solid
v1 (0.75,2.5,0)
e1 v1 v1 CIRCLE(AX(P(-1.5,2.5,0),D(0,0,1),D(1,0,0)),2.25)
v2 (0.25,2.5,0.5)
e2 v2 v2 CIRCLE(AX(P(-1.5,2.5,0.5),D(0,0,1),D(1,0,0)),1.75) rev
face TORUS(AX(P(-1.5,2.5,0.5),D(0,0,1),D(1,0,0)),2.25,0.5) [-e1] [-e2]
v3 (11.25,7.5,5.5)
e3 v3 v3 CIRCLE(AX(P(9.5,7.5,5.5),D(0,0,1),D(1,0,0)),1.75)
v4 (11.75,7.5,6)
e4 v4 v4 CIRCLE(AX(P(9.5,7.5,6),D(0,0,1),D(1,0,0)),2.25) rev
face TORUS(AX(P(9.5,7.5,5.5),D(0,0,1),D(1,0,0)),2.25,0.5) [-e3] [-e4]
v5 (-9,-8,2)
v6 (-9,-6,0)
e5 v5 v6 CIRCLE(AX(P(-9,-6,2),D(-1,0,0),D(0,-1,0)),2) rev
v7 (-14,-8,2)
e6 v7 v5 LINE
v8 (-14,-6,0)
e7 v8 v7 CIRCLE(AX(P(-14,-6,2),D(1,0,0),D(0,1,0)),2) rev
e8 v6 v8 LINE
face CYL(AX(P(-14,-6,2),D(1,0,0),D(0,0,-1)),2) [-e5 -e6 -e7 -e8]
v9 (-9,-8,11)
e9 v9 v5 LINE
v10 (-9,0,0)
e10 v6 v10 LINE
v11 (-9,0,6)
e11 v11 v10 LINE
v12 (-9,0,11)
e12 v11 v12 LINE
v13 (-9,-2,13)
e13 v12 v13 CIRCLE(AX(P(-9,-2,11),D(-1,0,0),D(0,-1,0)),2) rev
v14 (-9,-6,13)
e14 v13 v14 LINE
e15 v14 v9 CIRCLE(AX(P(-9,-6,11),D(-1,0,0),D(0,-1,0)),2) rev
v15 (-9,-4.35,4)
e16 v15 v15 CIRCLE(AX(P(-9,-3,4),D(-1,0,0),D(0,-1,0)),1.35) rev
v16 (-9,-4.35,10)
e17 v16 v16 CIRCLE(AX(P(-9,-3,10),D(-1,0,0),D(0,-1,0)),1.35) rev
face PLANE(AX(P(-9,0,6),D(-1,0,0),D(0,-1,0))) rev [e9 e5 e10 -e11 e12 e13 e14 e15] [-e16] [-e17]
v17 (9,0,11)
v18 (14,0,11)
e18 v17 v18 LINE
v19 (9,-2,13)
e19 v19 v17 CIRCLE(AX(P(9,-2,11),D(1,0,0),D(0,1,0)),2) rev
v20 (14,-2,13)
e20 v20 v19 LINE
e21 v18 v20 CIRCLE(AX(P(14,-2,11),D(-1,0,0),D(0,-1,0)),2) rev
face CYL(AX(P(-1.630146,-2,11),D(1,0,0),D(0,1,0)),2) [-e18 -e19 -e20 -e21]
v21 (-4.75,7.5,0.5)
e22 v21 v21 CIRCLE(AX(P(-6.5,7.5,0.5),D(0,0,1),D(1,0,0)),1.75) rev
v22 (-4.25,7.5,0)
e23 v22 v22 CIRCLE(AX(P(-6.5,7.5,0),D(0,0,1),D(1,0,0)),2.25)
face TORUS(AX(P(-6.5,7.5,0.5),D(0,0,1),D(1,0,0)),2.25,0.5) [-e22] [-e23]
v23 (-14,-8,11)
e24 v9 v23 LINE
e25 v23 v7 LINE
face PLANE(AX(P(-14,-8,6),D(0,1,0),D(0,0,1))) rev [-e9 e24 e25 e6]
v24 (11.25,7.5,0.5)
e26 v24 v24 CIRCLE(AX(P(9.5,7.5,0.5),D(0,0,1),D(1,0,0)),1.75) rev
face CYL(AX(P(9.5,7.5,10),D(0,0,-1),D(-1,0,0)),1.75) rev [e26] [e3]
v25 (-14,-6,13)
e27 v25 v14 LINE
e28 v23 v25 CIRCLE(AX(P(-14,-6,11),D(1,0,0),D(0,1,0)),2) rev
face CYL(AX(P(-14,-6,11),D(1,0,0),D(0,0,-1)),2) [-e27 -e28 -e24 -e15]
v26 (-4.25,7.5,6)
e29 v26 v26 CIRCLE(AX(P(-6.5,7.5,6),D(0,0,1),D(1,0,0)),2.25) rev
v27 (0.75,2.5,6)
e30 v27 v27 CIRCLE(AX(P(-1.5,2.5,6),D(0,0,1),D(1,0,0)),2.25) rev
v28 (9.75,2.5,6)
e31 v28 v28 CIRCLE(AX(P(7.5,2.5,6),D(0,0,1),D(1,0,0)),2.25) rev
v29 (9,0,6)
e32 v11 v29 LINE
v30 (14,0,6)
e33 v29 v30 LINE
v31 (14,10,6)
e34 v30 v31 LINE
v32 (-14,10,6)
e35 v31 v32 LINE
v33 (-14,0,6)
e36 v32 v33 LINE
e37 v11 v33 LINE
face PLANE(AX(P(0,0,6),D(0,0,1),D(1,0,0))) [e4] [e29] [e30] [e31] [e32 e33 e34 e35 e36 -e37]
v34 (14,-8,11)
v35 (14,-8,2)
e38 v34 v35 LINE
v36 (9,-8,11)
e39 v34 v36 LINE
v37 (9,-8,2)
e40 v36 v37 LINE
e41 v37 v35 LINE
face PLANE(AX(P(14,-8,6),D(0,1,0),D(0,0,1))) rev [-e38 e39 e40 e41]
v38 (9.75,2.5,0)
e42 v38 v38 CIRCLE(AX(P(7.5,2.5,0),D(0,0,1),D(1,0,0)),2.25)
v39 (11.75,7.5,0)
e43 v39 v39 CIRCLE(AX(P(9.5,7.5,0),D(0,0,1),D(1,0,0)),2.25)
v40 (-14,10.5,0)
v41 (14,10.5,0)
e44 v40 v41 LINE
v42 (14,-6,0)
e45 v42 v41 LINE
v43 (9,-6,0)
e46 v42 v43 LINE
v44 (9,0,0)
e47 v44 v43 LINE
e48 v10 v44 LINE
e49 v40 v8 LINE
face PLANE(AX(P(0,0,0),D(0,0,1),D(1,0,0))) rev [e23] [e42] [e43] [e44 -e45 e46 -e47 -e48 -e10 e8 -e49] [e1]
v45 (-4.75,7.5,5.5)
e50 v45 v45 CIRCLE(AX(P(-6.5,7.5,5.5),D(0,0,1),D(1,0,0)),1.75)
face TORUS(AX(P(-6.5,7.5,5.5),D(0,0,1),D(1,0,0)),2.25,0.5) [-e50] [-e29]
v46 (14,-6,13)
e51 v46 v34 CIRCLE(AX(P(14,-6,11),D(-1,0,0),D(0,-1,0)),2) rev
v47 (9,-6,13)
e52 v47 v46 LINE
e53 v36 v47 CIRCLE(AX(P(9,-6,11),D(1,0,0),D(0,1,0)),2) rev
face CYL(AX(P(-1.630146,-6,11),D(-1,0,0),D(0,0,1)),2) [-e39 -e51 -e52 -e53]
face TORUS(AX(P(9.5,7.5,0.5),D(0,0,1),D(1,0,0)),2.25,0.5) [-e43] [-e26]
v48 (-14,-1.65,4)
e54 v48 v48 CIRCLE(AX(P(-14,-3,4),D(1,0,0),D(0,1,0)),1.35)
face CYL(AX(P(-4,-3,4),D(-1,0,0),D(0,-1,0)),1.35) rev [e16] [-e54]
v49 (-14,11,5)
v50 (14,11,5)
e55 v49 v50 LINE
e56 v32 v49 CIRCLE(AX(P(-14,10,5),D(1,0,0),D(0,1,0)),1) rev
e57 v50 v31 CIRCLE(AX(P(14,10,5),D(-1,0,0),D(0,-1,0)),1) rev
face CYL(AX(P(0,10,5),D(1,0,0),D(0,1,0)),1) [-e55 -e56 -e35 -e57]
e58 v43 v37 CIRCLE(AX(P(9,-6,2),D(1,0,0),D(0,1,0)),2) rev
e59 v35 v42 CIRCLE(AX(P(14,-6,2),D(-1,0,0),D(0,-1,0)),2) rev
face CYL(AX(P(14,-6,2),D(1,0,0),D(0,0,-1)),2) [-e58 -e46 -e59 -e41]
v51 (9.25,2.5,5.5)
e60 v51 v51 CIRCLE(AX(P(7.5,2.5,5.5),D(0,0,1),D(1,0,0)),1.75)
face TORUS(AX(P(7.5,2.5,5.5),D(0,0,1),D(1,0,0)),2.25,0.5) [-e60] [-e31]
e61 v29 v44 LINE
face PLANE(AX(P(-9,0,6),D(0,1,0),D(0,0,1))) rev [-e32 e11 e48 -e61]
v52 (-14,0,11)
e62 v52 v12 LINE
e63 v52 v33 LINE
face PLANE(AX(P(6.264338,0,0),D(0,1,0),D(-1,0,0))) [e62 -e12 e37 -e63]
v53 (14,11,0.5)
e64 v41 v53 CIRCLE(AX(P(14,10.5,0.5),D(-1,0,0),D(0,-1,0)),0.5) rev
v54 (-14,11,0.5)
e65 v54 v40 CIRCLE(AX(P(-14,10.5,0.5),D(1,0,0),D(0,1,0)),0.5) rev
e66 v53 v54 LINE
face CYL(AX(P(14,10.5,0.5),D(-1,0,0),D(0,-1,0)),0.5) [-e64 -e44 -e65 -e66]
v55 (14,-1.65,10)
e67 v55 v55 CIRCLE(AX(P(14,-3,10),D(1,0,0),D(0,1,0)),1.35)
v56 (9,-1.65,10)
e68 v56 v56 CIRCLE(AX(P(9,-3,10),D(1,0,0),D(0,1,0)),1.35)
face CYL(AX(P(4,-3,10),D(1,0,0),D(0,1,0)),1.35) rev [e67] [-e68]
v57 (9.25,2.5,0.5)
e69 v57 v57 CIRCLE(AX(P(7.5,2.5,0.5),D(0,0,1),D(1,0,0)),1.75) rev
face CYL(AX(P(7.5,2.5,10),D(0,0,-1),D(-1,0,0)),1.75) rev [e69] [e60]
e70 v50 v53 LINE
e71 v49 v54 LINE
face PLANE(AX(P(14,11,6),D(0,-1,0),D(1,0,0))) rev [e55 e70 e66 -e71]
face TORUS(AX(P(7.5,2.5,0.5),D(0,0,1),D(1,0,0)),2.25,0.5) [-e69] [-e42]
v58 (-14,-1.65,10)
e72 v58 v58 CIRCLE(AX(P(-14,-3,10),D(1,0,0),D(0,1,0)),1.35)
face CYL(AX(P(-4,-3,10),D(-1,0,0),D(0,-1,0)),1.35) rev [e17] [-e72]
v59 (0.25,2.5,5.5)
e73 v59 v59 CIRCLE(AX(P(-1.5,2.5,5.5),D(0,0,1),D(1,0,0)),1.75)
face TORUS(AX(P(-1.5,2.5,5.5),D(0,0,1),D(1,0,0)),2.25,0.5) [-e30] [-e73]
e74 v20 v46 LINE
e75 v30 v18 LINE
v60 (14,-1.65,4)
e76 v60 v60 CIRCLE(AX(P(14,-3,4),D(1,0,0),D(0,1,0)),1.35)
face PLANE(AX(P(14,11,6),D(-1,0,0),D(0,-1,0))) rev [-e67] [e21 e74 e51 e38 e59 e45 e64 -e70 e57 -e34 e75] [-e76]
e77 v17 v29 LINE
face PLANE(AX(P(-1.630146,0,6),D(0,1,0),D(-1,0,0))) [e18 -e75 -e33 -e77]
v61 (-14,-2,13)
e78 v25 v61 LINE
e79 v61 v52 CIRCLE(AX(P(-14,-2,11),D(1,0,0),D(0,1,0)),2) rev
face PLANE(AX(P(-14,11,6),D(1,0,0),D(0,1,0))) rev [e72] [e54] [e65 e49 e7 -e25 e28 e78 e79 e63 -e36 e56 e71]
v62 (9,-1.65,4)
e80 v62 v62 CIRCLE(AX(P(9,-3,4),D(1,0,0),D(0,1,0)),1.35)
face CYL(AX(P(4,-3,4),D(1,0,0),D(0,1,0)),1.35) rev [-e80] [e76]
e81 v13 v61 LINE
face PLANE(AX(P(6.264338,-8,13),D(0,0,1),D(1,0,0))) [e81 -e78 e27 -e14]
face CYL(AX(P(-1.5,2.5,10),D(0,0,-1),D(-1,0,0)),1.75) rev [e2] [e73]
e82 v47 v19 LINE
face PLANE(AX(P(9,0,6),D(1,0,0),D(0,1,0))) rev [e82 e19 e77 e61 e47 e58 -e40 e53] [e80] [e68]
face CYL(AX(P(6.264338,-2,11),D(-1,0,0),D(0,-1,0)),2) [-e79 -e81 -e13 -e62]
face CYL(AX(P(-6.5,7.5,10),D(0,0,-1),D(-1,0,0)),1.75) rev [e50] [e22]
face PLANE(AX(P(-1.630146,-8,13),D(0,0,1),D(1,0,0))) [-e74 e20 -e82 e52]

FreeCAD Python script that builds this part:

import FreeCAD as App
import Part
import Sketcher

V = App.Vector
Q = App.Units.Quantity


def edges_at(feature, points):
    """Names of the edges that pass closest to the given points."""
    edges = feature.Shape.Edges
    near = lambda p: min(range(len(edges)), key=lambda i: edges[i].distToShape(Part.Vertex(*p))[0])
    return sorted({f"Edge{near(p) + 1}" for p in points})

doc = App.newDocument("Part")
params = doc.addObject("Spreadsheet::Sheet", "Params")
for row, (alias, value) in enumerate([
    ("sketch1_width", "28 mm"),
    ("sketch1_width2", "5 mm"),
    ("sketch1_height", "19 mm"),
    ("sketch1_height2", "8 mm"),
    ("pad1_length", "6 mm"),
    ("sketch2_width", "8 mm"),
    ("sketch2_height", "7 mm"),
    ("pad2_length", "5 mm"),
    ("sketch3_diameter", "2.7 mm"),
    ("pocket1_length", "10 mm"),
    ("sketch4_width", "8 mm"),
    ("sketch4_height", "13 mm"),
    ("pad3_length", "5 mm"),
    ("sketch5_diameter", "3.5 mm"),
    ("pocket2_length", "10 mm"),
    ("fillet_radius", "1 mm"),
    ("fillet2_radius", "0.5 mm"),
    ("fillet3_radius", "2 mm"),
], start=1):
    params.set(f"A{row}", alias)
    params.set(f"B{row}", "=" + value)
    params.setAlias(f"B{row}", alias)

body = doc.addObject("PartDesign::Body", "Body")

# Sketch on XY plane
sketch1 = body.newObject("Sketcher::SketchObject", "Sketch")
sketch1.AttachmentSupport = (doc.getObject("XY_Plane"), [""])
sketch1.MapMode = "FlatFace"
sketch1.addGeometry([
    Part.LineSegment(V(14, 11, 0), V(-14, 11, 0)),  # 0
    Part.LineSegment(V(-14, 11, 0), V(-14, -8, 0)),  # 1
    Part.LineSegment(V(-14, -8, 0), V(-9, -8, 0)),  # 2
    Part.LineSegment(V(-9, -8, 0), V(-9, 0, 0)),  # 3
    Part.LineSegment(V(-9, 0, 0), V(9, 0, 0)),  # 4
    Part.LineSegment(V(9, 0, 0), V(9, -8, 0)),  # 5
    Part.LineSegment(V(9, -8, 0), V(14, -8, 0)),  # 6
    Part.LineSegment(V(14, -8, 0), V(14, 11, 0)),  # 7
], False)
sketch1.addConstraint([
    Sketcher.Constraint("Coincident", 0, 2, 1, 1),
    Sketcher.Constraint("Coincident", 1, 2, 2, 1),
    Sketcher.Constraint("Coincident", 2, 2, 3, 1),
    Sketcher.Constraint("Coincident", 3, 2, 4, 1),
    Sketcher.Constraint("Coincident", 4, 2, 5, 1),
    Sketcher.Constraint("Coincident", 5, 2, 6, 1),
    Sketcher.Constraint("Coincident", 6, 2, 7, 1),
    Sketcher.Constraint("Coincident", 7, 2, 0, 1),
    Sketcher.Constraint("Horizontal", 0),
    Sketcher.Constraint("Vertical", 1),
    Sketcher.Constraint("Horizontal", 2),
    Sketcher.Constraint("Vertical", 3),
    Sketcher.Constraint("Horizontal", 4),
    Sketcher.Constraint("Vertical", 5),
    Sketcher.Constraint("Horizontal", 6),
    Sketcher.Constraint("Vertical", 7),
    Sketcher.Constraint("Symmetric", 3, 2, 4, 2, -1, 1),
    Sketcher.Constraint("Symmetric", 1, 2, 6, 2, -2),
    Sketcher.Constraint("DistanceX", 0, 2, 0, 1, Q("28 mm")),
    Sketcher.Constraint("DistanceX", 2, 1, 2, 2, Q("5 mm")),
    Sketcher.Constraint("DistanceY", 1, 2, 1, 1, Q("19 mm")),
    Sketcher.Constraint("DistanceY", 3, 1, 3, 2, Q("8 mm")),
])
sketch1.setExpression("Constraints[18]", "Params.sketch1_width")
sketch1.setExpression("Constraints[19]", "Params.sketch1_width2")
sketch1.setExpression("Constraints[20]", "Params.sketch1_height")
sketch1.setExpression("Constraints[21]", "Params.sketch1_height2")
pad1 = body.newObject("PartDesign::Pad", "Pad")
pad1.Profile = sketch1
pad1.setExpression("Length", "Params.pad1_length")

# Sketch on YZ plane
sketch2 = body.newObject("Sketcher::SketchObject", "Sketch001")
sketch2.AttachmentSupport = (doc.getObject("YZ_Plane"), [""])
sketch2.MapMode = "FlatFace"
sketch2.AttachmentOffset = App.Placement(V(0, 0, 14), App.Rotation())
sketch2.addGeometry([
    Part.LineSegment(V(0, 13, 0), V(-8, 13, 0)),
    Part.LineSegment(V(-8, 13, 0), V(-8, 6, 0)),
    Part.LineSegment(V(-8, 6, 0), V(0, 6, 0)),
    Part.LineSegment(V(0, 6, 0), V(0, 13, 0)),
], False)
sketch2.addConstraint([
    Sketcher.Constraint("Coincident", 0, 2, 1, 1),
    Sketcher.Constraint("Coincident", 1, 2, 2, 1),
    Sketcher.Constraint("Coincident", 2, 2, 3, 1),
    Sketcher.Constraint("Coincident", 3, 2, 0, 1),
    Sketcher.Constraint("Horizontal", 0),
    Sketcher.Constraint("Vertical", 1),
    Sketcher.Constraint("Horizontal", 2),
    Sketcher.Constraint("Vertical", 3),
    Sketcher.Constraint("PointOnObject", 2, 2, -2),
    Sketcher.Constraint("DistanceX", 0, 2, 0, 1, Q("8 mm")),
    Sketcher.Constraint("DistanceY", 1, 2, 1, 1, Q("7 mm")),
    Sketcher.Constraint("DistanceY", -1, 1, 0, 2, Q("13 mm")),
])
sketch2.setExpression("Constraints[9]", "Params.sketch2_width")
sketch2.setExpression("Constraints[10]", "Params.sketch2_height")
pad2 = body.newObject("PartDesign::Pad", "Pad001")
pad2.Profile = sketch2
pad2.setExpression("Length", "Params.pad2_length")
pad2.Reversed = True

# Sketch on YZ plane
sketch3 = body.newObject("Sketcher::SketchObject", "Sketch002")
sketch3.AttachmentSupport = (doc.getObject("YZ_Plane"), [""])
sketch3.MapMode = "FlatFace"
sketch3.AttachmentOffset = App.Placement(V(0, 0, 14), App.Rotation())
sketch3.addGeometry([
    Part.Circle(V(-3, 4, 0), V(0, 0, 1), 1.4),
    Part.Circle(V(-3, 10, 0), V(0, 0, 1), 1.4),
], False)
sketch3.addConstraint([
    Sketcher.Constraint("Equal", 0, 1),
    Sketcher.Constraint("Vertical", 0, 3, 1, 3),
    Sketcher.Constraint("Diameter", 0, Q("2.7 mm")),
    Sketcher.Constraint("DistanceX", 0, 3, -1, 1, Q("3 mm")),
    Sketcher.Constraint("DistanceY", -1, 1, 0, 3, Q("4 mm")),
    Sketcher.Constraint("DistanceY", -1, 1, 1, 3, Q("10 mm")),
])
sketch3.setExpression("Constraints[2]", "Params.sketch3_diameter")
pocket1 = body.newObject("PartDesign::Pocket", "Pocket")
pocket1.Profile = sketch3
pocket1.setExpression("Length", "Params.pocket1_length")

# Sketch on YZ plane
sketch4 = body.newObject("Sketcher::SketchObject", "Sketch003")
sketch4.AttachmentSupport = (doc.getObject("YZ_Plane"), [""])
sketch4.MapMode = "FlatFace"
sketch4.AttachmentOffset = App.Placement(V(0, 0, -14), App.Rotation())
sketch4.addGeometry([
    Part.LineSegment(V(0, 0, 0), V(-8, 0, 0)),
    Part.LineSegment(V(-8, 0, 0), V(-8, 13, 0)),
    Part.LineSegment(V(-8, 13, 0), V(0, 13, 0)),
    Part.LineSegment(V(0, 13, 0), V(0, 0, 0)),
], False)
sketch4.addConstraint([
    Sketcher.Constraint("Coincident", 0, 2, 1, 1),
    Sketcher.Constraint("Coincident", 1, 2, 2, 1),
    Sketcher.Constraint("Coincident", 2, 2, 3, 1),
    Sketcher.Constraint("Coincident", 3, 2, 0, 1),
    Sketcher.Constraint("Horizontal", 0),
    Sketcher.Constraint("Vertical", 1),
    Sketcher.Constraint("Horizontal", 2),
    Sketcher.Constraint("Vertical", 3),
    Sketcher.Constraint("Coincident", 3, 2, -1, 1),
    Sketcher.Constraint("DistanceX", 0, 2, 0, 1, Q("8 mm")),
    Sketcher.Constraint("DistanceY", 1, 1, 1, 2, Q("13 mm")),
])
sketch4.setExpression("Constraints[9]", "Params.sketch4_width")
sketch4.setExpression("Constraints[10]", "Params.sketch4_height")
pad3 = body.newObject("PartDesign::Pad", "Pad002")
pad3.Profile = sketch4
pad3.setExpression("Length", "Params.pad3_length")
doc.recompute()

mirrored = body.newObject("PartDesign::Mirrored", "Mirrored")
mirrored.Originals = [pocket1]
mirrored.MirrorPlane = (doc.getObject("YZ_Plane"), [""])
body.Tip = mirrored

# Sketch on XY plane
sketch5 = body.newObject("Sketcher::SketchObject", "Sketch004")
sketch5.AttachmentSupport = (doc.getObject("XY_Plane"), [""])
sketch5.MapMode = "FlatFace"
sketch5.addGeometry([
    Part.Circle(V(9.5, 7.5, 0), V(0, 0, 1), 1.8),
    Part.Circle(V(7.5, 2.5, 0), V(0, 0, 1), 1.8),
    Part.Circle(V(-1.5, 2.5, 0), V(0, 0, 1), 1.8),
    Part.Circle(V(-6.5, 7.5, 0), V(0, 0, 1), 1.8),
], False)
sketch5.addConstraint([
    Sketcher.Constraint("Equal", 0, 1),
    Sketcher.Constraint("Equal", 1, 2),
    Sketcher.Constraint("Equal", 2, 3),
    Sketcher.Constraint("Horizontal", 1, 3, 2, 3),
    Sketcher.Constraint("Horizontal", 0, 3, 3, 3),
    Sketcher.Constraint("Diameter", 0, Q("3.5 mm")),
    Sketcher.Constraint("DistanceX", 1, 3, 0, 3, Q("2 mm")),
    Sketcher.Constraint("DistanceY", 1, 3, 0, 3, Q("5 mm")),
    Sketcher.Constraint("DistanceX", 2, 3, 1, 3, Q("9 mm")),
    Sketcher.Constraint("DistanceX", 3, 3, 2, 3, Q("5 mm")),
    Sketcher.Constraint("DistanceX", -1, 1, 0, 3, Q("9.5 mm")),
    Sketcher.Constraint("DistanceY", -1, 1, 0, 3, Q("7.5 mm")),
])
sketch5.setExpression("Constraints[5]", "Params.sketch5_diameter")
pocket2 = body.newObject("PartDesign::Pocket", "Pocket001")
pocket2.Profile = sketch5
pocket2.setExpression("Length", "Params.pocket2_length")
pocket2.Reversed = True
doc.recompute()

fillet = body.newObject("PartDesign::Fillet", "Fillet")
fillet.Base = (pocket2, edges_at(pocket2, [(0, 11, 6)]))
fillet.setExpression("Radius", "Params.fillet_radius")
doc.recompute()

fillet2 = body.newObject("PartDesign::Fillet", "Fillet001")
fillet2.Base = (fillet, edges_at(fillet, [
    (11.25, 7.5, 6),
    (11.25, 7.5, 0),
    (0, 11, 0),
    (9.25, 2.5, 6),
    (9.25, 2.5, 0),
    (-3.25, 2.5, 6),
    (-3.25, 2.5, 0),
    (-8.25, 7.5, 6),
    (-8.25, 7.5, 0),
]))
fillet2.setExpression("Radius", "Params.fillet2_radius")
doc.recompute()

fillet3 = body.newObject("PartDesign::Fillet", "Fillet002")
fillet3.Base = (fillet2, edges_at(fillet2, [
    (-11.5, -8, 0),
    (11.5, -8, 13),
    (11.5, 0, 13),
    (-11.5, 0, 13),
    (-11.5, -8, 13),
    (11.5, -8, 0),
]))
fillet3.setExpression("Radius", "Params.fillet3_radius")

doc.recompute()
